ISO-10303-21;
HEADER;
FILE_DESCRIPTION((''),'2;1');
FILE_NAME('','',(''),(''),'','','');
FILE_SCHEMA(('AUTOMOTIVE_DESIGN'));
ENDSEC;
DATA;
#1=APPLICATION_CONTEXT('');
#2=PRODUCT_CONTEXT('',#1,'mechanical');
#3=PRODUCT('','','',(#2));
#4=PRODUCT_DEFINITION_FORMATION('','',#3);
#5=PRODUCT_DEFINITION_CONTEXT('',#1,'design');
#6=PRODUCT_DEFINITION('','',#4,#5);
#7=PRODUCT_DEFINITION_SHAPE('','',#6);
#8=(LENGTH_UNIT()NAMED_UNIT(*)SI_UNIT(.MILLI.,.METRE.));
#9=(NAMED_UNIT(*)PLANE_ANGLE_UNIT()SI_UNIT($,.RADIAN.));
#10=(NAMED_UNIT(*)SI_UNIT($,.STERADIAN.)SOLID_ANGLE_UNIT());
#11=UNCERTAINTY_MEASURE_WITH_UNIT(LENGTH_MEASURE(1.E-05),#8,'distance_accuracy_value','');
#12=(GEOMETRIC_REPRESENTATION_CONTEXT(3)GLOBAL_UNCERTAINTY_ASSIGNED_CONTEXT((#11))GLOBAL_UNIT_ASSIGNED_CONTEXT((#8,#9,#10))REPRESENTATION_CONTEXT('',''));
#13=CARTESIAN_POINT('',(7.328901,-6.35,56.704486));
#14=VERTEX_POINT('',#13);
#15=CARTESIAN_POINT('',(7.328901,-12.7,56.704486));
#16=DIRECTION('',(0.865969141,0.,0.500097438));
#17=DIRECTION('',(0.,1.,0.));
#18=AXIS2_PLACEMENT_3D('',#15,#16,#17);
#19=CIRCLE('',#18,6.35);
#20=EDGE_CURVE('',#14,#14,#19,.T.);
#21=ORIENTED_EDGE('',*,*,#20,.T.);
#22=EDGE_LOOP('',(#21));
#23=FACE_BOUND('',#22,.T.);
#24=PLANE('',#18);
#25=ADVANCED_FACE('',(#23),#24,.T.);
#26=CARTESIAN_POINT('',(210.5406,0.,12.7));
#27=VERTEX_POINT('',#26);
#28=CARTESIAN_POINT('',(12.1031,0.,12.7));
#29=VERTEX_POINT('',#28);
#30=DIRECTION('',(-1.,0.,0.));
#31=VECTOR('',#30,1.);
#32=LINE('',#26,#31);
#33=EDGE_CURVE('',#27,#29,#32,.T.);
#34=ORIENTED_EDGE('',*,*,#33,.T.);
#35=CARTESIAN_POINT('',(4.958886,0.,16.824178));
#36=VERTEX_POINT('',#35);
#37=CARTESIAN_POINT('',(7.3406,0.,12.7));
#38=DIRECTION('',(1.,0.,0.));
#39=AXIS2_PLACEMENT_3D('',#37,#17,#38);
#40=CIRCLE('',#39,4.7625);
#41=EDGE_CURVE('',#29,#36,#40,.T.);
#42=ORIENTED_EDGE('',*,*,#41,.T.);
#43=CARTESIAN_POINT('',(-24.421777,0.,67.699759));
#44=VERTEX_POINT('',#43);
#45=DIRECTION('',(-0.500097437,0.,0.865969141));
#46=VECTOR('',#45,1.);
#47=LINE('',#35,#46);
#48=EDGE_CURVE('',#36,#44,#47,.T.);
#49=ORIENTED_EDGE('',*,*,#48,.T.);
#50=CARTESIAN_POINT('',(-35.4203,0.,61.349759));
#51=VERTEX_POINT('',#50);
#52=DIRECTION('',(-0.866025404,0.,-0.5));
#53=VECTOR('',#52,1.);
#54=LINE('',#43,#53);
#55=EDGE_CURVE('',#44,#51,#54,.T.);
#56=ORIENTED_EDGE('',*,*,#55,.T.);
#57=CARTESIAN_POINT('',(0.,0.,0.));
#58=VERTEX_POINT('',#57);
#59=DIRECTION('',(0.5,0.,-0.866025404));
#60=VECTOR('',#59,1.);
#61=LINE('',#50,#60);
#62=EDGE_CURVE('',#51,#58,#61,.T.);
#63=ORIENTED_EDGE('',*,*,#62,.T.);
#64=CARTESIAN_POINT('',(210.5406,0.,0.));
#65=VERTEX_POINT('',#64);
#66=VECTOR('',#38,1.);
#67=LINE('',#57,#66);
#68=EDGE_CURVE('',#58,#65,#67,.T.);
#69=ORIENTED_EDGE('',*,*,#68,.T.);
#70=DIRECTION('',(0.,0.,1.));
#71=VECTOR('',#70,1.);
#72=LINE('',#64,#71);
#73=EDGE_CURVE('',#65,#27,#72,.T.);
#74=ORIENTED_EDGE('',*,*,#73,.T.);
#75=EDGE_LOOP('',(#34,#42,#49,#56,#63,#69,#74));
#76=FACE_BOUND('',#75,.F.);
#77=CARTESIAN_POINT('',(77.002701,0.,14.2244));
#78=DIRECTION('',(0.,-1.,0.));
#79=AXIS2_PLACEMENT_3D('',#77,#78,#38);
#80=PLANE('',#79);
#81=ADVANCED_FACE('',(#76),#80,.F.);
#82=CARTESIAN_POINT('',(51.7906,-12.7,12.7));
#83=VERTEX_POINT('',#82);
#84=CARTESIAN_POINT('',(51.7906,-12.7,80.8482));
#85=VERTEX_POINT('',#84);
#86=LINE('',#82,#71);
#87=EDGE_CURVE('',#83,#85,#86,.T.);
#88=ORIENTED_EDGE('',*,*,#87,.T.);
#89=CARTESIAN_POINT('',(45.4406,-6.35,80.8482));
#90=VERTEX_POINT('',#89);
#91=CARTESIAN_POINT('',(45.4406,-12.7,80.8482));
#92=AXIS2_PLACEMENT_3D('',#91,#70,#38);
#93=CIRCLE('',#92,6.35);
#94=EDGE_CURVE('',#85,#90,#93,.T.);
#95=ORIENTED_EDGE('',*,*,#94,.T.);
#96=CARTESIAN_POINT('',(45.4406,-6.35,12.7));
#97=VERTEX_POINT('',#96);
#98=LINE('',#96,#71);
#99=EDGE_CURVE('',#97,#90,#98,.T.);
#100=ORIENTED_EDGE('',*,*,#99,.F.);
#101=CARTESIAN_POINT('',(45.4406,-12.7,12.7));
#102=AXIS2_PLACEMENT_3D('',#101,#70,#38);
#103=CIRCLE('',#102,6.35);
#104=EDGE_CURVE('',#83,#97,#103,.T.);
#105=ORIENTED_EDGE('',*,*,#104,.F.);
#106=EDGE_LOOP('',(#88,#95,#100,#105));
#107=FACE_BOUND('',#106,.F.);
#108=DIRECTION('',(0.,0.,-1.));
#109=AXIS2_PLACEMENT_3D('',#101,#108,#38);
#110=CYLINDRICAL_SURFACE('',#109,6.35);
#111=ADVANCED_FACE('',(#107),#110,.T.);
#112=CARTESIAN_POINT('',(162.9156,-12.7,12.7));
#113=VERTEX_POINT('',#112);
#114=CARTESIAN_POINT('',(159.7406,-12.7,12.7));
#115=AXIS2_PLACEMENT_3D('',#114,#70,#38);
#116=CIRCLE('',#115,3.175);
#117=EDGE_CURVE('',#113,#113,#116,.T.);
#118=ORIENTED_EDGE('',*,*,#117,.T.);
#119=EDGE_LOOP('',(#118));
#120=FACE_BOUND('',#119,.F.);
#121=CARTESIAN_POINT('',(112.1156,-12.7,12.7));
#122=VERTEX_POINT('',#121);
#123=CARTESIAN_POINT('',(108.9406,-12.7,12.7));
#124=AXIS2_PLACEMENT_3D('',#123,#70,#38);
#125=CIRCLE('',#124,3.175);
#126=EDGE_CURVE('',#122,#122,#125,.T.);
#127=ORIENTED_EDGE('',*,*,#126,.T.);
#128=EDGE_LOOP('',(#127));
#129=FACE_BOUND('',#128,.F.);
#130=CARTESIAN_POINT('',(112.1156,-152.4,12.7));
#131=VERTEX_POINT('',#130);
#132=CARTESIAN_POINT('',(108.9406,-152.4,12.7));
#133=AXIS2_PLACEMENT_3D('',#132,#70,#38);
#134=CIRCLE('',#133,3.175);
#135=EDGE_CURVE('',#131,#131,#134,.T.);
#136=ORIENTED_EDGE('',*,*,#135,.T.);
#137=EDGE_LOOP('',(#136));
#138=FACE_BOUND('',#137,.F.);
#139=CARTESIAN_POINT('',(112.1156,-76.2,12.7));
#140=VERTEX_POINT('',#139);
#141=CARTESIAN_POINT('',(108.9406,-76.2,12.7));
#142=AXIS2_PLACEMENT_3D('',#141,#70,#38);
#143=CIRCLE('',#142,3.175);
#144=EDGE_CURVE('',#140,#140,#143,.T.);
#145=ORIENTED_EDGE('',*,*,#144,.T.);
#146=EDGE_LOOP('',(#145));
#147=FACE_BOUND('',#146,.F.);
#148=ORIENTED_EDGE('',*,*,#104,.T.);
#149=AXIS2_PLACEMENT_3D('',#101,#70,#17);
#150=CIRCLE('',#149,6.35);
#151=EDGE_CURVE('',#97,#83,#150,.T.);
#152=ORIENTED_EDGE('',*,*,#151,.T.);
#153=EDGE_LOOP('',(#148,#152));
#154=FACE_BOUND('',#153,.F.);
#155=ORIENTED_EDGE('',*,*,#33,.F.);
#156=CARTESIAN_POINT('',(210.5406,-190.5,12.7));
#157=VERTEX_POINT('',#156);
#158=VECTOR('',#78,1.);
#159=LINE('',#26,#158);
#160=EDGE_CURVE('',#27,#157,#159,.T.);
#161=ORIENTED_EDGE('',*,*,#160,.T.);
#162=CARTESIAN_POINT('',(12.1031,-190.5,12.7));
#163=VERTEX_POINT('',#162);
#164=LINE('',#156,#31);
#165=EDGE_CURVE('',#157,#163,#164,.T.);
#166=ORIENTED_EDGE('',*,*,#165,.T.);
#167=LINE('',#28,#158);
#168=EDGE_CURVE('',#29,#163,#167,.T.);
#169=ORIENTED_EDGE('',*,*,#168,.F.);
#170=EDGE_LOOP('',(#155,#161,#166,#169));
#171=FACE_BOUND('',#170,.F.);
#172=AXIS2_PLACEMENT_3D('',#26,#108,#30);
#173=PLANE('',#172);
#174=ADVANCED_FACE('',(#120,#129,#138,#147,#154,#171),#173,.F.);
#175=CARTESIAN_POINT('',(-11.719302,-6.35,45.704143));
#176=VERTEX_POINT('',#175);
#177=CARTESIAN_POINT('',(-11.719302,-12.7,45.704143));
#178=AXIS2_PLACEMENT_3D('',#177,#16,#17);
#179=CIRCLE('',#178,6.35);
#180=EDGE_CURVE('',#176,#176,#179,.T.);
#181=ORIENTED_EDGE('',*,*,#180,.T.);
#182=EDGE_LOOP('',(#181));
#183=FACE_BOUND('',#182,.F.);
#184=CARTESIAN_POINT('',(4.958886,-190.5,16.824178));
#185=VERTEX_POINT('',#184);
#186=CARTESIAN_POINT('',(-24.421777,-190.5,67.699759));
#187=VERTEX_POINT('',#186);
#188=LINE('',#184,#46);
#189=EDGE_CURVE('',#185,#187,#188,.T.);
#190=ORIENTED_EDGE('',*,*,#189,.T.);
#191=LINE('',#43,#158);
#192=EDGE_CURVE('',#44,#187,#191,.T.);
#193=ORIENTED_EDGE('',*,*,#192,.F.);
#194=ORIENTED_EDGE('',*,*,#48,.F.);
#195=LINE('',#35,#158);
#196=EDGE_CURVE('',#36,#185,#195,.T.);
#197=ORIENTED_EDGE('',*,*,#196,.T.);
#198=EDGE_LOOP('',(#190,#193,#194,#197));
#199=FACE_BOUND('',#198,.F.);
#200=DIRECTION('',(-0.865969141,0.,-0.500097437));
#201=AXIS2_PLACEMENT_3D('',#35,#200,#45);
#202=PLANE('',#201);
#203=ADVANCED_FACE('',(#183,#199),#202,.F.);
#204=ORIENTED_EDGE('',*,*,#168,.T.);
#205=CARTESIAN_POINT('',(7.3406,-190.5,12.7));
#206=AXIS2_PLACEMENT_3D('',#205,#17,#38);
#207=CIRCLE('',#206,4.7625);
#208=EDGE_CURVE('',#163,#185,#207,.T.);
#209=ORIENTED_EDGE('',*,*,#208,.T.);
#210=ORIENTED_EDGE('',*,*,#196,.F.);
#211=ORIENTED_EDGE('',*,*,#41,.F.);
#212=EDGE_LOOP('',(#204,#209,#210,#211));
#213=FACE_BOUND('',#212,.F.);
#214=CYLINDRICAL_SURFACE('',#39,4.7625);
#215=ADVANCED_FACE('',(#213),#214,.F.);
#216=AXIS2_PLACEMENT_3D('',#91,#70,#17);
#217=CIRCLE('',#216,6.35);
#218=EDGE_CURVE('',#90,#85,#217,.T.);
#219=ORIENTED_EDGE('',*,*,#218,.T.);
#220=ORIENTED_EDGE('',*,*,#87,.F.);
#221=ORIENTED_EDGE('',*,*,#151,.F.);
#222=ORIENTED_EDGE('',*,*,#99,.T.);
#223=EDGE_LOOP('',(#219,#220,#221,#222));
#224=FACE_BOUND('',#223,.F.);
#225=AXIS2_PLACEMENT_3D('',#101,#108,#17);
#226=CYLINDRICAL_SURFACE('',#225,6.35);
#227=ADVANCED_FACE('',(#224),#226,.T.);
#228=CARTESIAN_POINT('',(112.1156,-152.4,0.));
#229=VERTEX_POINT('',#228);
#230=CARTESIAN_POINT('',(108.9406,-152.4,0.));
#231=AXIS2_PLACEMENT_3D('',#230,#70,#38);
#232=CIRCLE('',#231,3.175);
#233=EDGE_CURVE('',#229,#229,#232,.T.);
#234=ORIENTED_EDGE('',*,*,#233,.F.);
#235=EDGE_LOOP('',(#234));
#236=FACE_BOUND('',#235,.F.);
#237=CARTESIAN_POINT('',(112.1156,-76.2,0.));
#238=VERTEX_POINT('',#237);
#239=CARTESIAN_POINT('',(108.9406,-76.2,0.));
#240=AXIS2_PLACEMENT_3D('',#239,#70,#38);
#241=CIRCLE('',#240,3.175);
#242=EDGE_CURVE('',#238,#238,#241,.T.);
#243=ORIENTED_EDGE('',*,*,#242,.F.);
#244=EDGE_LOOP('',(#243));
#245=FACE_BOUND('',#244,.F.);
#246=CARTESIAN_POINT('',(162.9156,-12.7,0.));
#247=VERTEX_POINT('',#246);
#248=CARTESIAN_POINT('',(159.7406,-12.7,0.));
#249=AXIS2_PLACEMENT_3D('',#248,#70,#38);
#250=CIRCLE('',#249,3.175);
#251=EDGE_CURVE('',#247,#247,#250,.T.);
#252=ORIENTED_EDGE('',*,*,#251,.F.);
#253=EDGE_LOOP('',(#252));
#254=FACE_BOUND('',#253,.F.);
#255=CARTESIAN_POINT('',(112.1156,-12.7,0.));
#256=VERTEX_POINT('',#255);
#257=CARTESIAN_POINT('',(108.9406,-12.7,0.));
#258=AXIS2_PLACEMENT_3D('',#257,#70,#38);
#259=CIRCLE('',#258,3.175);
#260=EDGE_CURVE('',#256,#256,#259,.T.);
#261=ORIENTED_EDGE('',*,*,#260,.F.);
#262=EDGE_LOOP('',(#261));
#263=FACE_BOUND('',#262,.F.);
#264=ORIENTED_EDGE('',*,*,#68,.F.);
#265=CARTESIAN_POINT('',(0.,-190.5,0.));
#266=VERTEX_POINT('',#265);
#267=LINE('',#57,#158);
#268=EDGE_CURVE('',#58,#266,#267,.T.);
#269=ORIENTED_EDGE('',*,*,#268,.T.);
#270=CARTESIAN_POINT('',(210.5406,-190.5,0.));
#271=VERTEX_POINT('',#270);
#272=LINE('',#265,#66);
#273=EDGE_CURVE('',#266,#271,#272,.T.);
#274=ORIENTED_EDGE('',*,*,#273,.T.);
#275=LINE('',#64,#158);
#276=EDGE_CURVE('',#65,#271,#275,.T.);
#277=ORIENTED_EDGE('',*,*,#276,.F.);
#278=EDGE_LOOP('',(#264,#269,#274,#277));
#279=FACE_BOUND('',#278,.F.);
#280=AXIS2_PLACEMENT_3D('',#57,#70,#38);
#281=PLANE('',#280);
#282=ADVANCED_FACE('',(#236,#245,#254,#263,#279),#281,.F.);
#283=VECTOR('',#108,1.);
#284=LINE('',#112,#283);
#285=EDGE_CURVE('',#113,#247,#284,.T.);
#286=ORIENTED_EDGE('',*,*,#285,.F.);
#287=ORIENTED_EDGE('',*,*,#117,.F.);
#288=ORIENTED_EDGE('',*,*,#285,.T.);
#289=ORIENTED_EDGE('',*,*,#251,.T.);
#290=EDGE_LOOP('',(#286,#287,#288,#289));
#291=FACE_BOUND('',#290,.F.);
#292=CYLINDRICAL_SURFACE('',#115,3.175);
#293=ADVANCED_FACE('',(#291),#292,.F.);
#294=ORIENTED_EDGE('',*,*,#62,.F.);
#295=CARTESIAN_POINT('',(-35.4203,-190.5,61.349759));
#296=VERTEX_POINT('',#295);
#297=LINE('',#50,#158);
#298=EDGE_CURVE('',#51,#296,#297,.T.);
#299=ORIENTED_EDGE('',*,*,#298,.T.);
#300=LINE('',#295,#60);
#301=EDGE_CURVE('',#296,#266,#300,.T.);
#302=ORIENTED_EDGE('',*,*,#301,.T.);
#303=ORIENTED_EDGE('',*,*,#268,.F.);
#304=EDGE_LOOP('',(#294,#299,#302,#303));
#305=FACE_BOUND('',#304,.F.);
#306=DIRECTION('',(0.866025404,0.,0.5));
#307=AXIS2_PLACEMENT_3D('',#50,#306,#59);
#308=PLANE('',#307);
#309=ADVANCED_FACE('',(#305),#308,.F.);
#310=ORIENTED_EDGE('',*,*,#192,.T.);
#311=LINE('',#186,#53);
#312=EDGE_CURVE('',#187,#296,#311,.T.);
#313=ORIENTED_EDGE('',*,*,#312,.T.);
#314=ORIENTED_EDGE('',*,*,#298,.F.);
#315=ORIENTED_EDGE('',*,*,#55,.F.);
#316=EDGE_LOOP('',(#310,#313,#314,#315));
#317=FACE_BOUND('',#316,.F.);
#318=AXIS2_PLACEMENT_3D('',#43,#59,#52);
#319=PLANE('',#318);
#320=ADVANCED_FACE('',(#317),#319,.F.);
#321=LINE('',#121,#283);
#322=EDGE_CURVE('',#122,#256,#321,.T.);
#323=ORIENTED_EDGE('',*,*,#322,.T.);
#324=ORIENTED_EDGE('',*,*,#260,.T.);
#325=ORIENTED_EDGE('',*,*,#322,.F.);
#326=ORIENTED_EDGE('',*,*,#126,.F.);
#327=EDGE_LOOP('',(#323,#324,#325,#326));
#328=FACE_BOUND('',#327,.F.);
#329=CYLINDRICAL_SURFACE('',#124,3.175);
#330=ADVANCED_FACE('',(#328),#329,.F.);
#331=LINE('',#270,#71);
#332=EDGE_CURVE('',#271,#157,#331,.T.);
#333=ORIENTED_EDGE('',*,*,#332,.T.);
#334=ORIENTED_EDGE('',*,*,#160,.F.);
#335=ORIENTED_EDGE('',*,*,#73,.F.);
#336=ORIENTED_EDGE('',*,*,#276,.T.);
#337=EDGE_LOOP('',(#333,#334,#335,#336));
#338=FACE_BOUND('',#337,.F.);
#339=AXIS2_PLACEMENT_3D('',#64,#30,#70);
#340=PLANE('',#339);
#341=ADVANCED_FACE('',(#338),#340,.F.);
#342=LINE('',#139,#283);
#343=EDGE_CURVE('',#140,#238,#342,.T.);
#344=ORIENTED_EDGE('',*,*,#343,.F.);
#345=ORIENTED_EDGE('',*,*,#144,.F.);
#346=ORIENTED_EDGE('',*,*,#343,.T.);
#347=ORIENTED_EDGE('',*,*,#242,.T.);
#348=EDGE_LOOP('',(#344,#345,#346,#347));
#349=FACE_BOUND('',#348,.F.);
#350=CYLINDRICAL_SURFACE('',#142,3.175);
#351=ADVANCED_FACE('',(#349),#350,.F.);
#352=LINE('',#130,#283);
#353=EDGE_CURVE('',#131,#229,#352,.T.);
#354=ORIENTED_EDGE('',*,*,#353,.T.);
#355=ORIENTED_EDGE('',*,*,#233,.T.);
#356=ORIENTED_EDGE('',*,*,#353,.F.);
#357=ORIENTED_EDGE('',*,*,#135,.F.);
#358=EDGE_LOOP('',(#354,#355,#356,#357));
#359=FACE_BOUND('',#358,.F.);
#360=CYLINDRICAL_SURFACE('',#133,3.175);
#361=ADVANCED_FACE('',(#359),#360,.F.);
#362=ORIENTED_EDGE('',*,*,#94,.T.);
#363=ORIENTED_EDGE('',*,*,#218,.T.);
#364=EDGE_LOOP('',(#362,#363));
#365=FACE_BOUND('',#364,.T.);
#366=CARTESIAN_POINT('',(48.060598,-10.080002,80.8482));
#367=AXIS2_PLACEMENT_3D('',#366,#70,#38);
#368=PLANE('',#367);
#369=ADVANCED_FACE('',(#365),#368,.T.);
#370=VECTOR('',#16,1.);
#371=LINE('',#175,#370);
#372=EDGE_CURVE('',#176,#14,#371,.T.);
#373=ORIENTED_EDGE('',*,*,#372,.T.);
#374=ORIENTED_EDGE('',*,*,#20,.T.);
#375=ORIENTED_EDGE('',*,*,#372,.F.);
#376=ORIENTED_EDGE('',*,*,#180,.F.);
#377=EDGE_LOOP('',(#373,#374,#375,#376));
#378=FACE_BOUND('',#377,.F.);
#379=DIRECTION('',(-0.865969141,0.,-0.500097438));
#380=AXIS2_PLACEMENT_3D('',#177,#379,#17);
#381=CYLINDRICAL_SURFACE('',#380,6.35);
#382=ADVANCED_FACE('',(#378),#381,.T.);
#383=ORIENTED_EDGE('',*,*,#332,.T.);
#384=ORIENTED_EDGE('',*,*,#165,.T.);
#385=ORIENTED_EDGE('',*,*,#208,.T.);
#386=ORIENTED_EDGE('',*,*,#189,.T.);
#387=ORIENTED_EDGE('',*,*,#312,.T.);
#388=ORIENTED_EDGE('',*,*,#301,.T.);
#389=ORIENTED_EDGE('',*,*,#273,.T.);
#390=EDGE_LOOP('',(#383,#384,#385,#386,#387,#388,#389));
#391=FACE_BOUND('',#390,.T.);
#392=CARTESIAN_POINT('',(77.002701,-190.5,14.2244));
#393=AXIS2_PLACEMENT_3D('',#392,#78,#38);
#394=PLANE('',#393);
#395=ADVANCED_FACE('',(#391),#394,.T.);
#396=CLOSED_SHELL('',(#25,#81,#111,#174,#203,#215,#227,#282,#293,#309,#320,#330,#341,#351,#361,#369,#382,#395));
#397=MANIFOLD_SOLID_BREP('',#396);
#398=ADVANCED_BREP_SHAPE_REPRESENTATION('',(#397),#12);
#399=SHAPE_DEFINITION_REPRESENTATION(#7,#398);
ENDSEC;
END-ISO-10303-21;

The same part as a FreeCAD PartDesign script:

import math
import FreeCAD as App
import Part
import Sketcher

V = App.Vector
Q = App.Units.Quantity

doc = App.newDocument("Part")
body = doc.addObject("PartDesign::Body", "Body")

sketch1 = doc.addObject("Sketcher::SketchObject", "Sketch")
body.addObject(sketch1)
sketch1.AttachmentSupport = (doc.XZ_Plane, [""])
sketch1.MapMode = "FlatFace"
sketch1.addGeometry(Part.LineSegment(V(-35.4, 61.3, 0), V(0, 0, 0)), False)
sketch1.addGeometry(Part.LineSegment(V(0, 0, 0), V(210.5, 0, 0)), False)
sketch1.addGeometry(Part.LineSegment(V(210.5, 0, 0), V(210.5, 12.7, 0)), False)
sketch1.addGeometry(Part.LineSegment(V(210.5, 12.7, 0), V(12.1, 12.7, 0)), False)
sketch1.addGeometry(Part.ArcOfCircle(Part.Circle(V(7.3, 12.7, 0), V(0, 0, 1), 4.8), math.radians(120), math.radians(360)), False)
sketch1.addGeometry(Part.LineSegment(V(5, 16.8, 0), V(-24.4, 67.7, 0)), False)
sketch1.addGeometry(Part.LineSegment(V(-24.4, 67.7, 0), V(-35.4, 61.3, 0)), False)
sketch1.addConstraint(Sketcher.Constraint("Coincident", 0, 2, 1, 1))
sketch1.addConstraint(Sketcher.Constraint("Coincident", 1, 2, 2, 1))
sketch1.addConstraint(Sketcher.Constraint("Coincident", 2, 2, 3, 1))
sketch1.addConstraint(Sketcher.Constraint("Coincident", 3, 2, 4, 2))
sketch1.addConstraint(Sketcher.Constraint("Coincident", 4, 1, 5, 1))
sketch1.addConstraint(Sketcher.Constraint("Coincident", 5, 2, 6, 1))
sketch1.addConstraint(Sketcher.Constraint("Coincident", 6, 2, 0, 1))
sketch1.addConstraint(Sketcher.Constraint("Horizontal", 1))
sketch1.addConstraint(Sketcher.Constraint("Vertical", 2))
sketch1.addConstraint(Sketcher.Constraint("Horizontal", 3))
sketch1.addConstraint(Sketcher.Constraint("Coincident", 0, 2, -1, 1))
sketch1.addConstraint(Sketcher.Constraint("Perpendicular", 0, 6))
sketch1.addConstraint(Sketcher.Constraint("Horizontal", 4, 3, 2, 2))
sketch1.addConstraint(Sketcher.Constraint("DistanceY", 2, 1, 2, 2, Q("0.5 in")))
sketch1.addConstraint(Sketcher.Constraint("Angle", 0, Q("-60 deg")))
sketch1.addConstraint(Sketcher.Constraint("Radius", 4, Q("0.1875 in")))
sketch1.addConstraint(Sketcher.Constraint("DistanceX", 4, 3, 1, 2, Q("8 in")))
sketch1.addConstraint(Sketcher.Constraint("Distance", 6, Q("0.5 in")))
sketch1.addConstraint(Sketcher.Constraint("DistanceX", 1, 1, 1, 2, Q("8.289 in")))
sketch1.addConstraint(Sketcher.Constraint("Distance", 0, Q("2.789 in")))
sketch1.addConstraint(Sketcher.Constraint("DistanceY", -1, 1, 4, 1, 16.824178))
pad1 = doc.addObject("PartDesign::Pad", "Pad")
body.addObject(pad1)
pad1.Profile = sketch1
pad1.Length = Q("7.5 in")

sketch2 = doc.addObject("Sketcher::SketchObject", "Sketch001")
body.addObject(sketch2)
sketch2.AttachmentSupport = (doc.XY_Plane, [""])
sketch2.MapMode = "FlatFace"
sketch2.AttachmentOffset = App.Placement(V(0, 0, 0.5 * 25.4), App.Rotation())
sketch2.addGeometry(Part.Circle(V(108.9, -12.7, 0), V(0, 0, 1), 3.2), False)
sketch2.addGeometry(Part.Circle(V(108.9, -76.2, 0), V(0, 0, 1), 3.2), False)
sketch2.addGeometry(Part.Circle(V(159.7, -12.7, 0), V(0, 0, 1), 3.2), False)
sketch2.addGeometry(Part.Circle(V(108.9, -152.4, 0), V(0, 0, 1), 3.2), False)
sketch2.addConstraint(Sketcher.Constraint("Equal", 0, 1))
sketch2.addConstraint(Sketcher.Constraint("Equal", 1, 2))
sketch2.addConstraint(Sketcher.Constraint("Equal", 2, 3))
sketch2.addConstraint(Sketcher.Constraint("Horizontal", 0, 3, 2, 3))
sketch2.addConstraint(Sketcher.Constraint("Vertical", 0, 3, 1, 3))
sketch2.addConstraint(Sketcher.Constraint("Vertical", 1, 3, 3, 3))
sketch2.addConstraint(Sketcher.Constraint("Diameter", 0, Q("0.25 in")))
sketch2.addConstraint(Sketcher.Constraint("DistanceY", 1, 3, -1, 1, Q("3 in")))
sketch2.addConstraint(Sketcher.Constraint("DistanceY", 3, 3, -1, 1, Q("6 in")))
sketch2.addConstraint(Sketcher.Constraint("DistanceX", 0, 3, 2, 3, Q("2 in")))
sketch2.addConstraint(Sketcher.Constraint("DistanceY", 0, 3, -1, 1, Q("0.5 in")))
sketch2.addConstraint(Sketcher.Constraint("DistanceX", -1, 1, 0, 3, Q("4.289 in")))
pocket1 = doc.addObject("PartDesign::Pocket", "Pocket")
body.addObject(pocket1)
pocket1.Profile = sketch2
pocket1.Length = Q("1 in")

sketch3 = doc.addObject("Sketcher::SketchObject", "Sketch002")
body.addObject(sketch3)
sketch3.AttachmentSupport = (doc.XY_Plane, [""])
sketch3.MapMode = "FlatFace"
sketch3.AttachmentOffset = App.Placement(V(0, 0, 0.5 * 25.4), App.Rotation())
sketch3.addGeometry(Part.ArcOfCircle(Part.Circle(V(45, -13, 0), V(0, 0, 1), 6), math.radians(0), math.radians(90)), False)
sketch3.addGeometry(Part.ArcOfCircle(Part.Circle(V(45, -13, 0), V(0, 0, 1), 6), math.radians(90), math.radians(360)), False)
sketch3.addConstraint(Sketcher.Constraint("Tangent", 0, 1, 1, 2))
sketch3.addConstraint(Sketcher.Constraint("Coincident", 1, 1, 0, 2))
sketch3.addConstraint(Sketcher.Constraint("Horizontal", 1, 3, 0, 1))
sketch3.addConstraint(Sketcher.Constraint("Vertical", 0, 3, 1, 1))
sketch3.addConstraint(Sketcher.Constraint("Radius", 0, Q("0.25 in")))
sketch3.addConstraint(Sketcher.Constraint("DistanceY", 0, 3, -1, 1, Q("0.5 in")))
sketch3.addConstraint(Sketcher.Constraint("DistanceX", -1, 1, 0, 3, Q("1.789 in")))
pad2 = doc.addObject("PartDesign::Pad", "Pad001")
body.addObject(pad2)
pad2.Profile = sketch3
pad2.Length = Q("2.683 in")

sketch4 = doc.addObject("Sketcher::SketchObject", "Sketch003")
body.addObject(sketch4)
sketch4.Placement = App.Placement(V(11.00471, 0, 6.355223), App.Rotation(V(0, 1, 0), V(-0.500097438, 0, 0.865969141), V(0.865969141, 0, 0.500097438), "ZXY"))
sketch4.addGeometry(Part.Circle(V(-13, 45, 0), V(0, 0, 1), 6), False)
sketch4.addConstraint(Sketcher.Constraint("Diameter", 0, Q("0.5 in")))
sketch4.addConstraint(Sketcher.Constraint("DistanceX", 0, 3, -1, 1, Q("0.5 in")))
sketch4.addConstraint(Sketcher.Constraint("DistanceY", -1, 1, 0, 3, 45.439171))
pad3 = doc.addObject("PartDesign::Pad", "Pad002")
body.addObject(pad3)
pad3.Profile = sketch4
pad3.Length = Q("0.866 in")

doc.recompute()
